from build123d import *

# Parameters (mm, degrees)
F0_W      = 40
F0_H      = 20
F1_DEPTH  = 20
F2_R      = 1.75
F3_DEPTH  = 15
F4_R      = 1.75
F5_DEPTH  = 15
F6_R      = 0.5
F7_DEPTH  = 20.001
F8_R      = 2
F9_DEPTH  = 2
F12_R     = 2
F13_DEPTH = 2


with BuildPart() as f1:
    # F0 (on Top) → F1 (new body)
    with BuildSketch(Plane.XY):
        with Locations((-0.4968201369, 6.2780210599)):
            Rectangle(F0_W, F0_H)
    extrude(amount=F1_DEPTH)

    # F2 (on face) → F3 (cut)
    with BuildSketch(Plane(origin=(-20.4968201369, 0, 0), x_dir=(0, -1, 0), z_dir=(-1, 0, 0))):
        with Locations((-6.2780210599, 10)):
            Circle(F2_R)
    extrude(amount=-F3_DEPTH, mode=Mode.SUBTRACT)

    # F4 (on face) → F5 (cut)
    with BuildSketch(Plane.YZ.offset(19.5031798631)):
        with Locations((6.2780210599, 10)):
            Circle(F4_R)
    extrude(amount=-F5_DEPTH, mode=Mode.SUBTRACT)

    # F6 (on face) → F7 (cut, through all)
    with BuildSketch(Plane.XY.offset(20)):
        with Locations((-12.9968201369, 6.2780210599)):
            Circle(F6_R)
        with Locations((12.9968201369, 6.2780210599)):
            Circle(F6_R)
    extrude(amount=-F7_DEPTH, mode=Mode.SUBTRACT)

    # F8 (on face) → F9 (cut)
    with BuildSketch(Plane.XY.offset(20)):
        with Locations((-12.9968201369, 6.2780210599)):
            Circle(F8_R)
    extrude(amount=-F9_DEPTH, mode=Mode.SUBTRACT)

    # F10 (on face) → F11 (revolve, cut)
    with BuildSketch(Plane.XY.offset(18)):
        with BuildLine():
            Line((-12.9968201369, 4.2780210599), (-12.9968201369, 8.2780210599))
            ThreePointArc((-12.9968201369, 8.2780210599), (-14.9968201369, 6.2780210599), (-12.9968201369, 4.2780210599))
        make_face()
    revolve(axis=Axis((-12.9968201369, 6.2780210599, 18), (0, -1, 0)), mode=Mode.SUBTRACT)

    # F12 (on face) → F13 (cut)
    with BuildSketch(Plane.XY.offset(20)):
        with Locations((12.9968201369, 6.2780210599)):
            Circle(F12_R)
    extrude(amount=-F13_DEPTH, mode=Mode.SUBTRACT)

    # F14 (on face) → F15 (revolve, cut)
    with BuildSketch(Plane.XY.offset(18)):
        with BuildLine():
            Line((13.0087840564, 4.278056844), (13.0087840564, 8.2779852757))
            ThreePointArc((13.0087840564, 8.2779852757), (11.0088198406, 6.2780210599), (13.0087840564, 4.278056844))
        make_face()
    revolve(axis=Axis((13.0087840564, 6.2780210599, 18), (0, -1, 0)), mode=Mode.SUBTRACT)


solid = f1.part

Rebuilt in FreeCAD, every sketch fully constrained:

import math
import FreeCAD as App
import Part
import Sketcher
from FreeCAD import Vector
Q = App.Units.Quantity


def add_polygon(sketch, points):
    """Adds a closed chain of lines whose ends are joined by coincident constraints."""
    first, n = sketch.GeometryCount, len(points)
    for a, b in zip(points, points[1:] + points[:1]):
        sketch.addGeometry(Part.LineSegment(App.Vector(*a, 0), App.Vector(*b, 0)), False)
    for i in range(n):
        sketch.addConstraint(Sketcher.Constraint("Coincident", first + i, 2, first + (i + 1) % n, 1))

doc = App.newDocument("Part")
params = doc.addObject("Spreadsheet::Sheet", "Params")
for row, (alias, value) in enumerate([
    ("sketch1_width", "40 mm"),
    ("sketch1_height", "20 mm"),
    ("pad1_length", "20 mm"),
    ("sketch2_diameter", "3.5 mm"),
    ("pocket1_length", "15 mm"),
    ("sketch3_diameter", "3.5 mm"),
    ("pocket2_length", "15 mm"),
    ("sketch4_diameter", "1 mm"),
    ("sketch5_diameter", "4 mm"),
    ("pocket4_length", "2 mm"),
    ("sketch6_radius", "2 mm"),
    ("groove_angle", "360 deg"),
    ("sketch7_diameter", "4 mm"),
    ("pocket5_length", "2 mm"),
    ("groove2_angle", "360 deg"),
], start=1):
    params.set(f"A{row}", alias)
    params.set(f"B{row}", "=" + value)
    params.setAlias(f"B{row}", alias)

body = doc.addObject("PartDesign::Body", "Body")

# Sketch on XY plane
sketch1 = doc.addObject("Sketcher::SketchObject", "Sketch")
body.addObject(sketch1)
sketch1.AttachmentSupport = (doc.XY_Plane, [""])
sketch1.MapMode = "FlatFace"
add_polygon(sketch1, [(-20.49682, 16.278021), (-20.49682, -3.721979), (19.50318, -3.721979), (19.50318, 16.278021)])  # lines 0-3
sketch1.addConstraint([
    Sketcher.Constraint("Vertical", 0),
    Sketcher.Constraint("Horizontal", 1),
    Sketcher.Constraint("Vertical", 2),
    Sketcher.Constraint("Horizontal", 3),
    Sketcher.Constraint("DistanceX", 1, 1, 1, 2, Q("40 mm")),
    Sketcher.Constraint("DistanceY", 0, 2, 0, 1, Q("20 mm")),
    Sketcher.Constraint("DistanceX", 0, 2, -1, 1, Q("20.49682 mm")),
    Sketcher.Constraint("DistanceY", 0, 2, -1, 1, Q("3.721979 mm")),
])
sketch1.setExpression("Constraints[8]", "Params.sketch1_width")
sketch1.setExpression("Constraints[9]", "Params.sketch1_height")
pad1 = doc.addObject("PartDesign::Pad", "Pad")
body.addObject(pad1)
pad1.Profile = sketch1
pad1.setExpression("Length", "Params.pad1_length")

# Sketch on YZ plane
sketch2 = doc.addObject("Sketcher::SketchObject", "Sketch001")
body.addObject(sketch2)
sketch2.AttachmentSupport = (doc.YZ_Plane, [""])
sketch2.MapMode = "FlatFace"
sketch2.AttachmentOffset = App.Placement(Vector(0, 0, -20.49682), App.Rotation())
sketch2.addGeometry(Part.Circle(Vector(6.278021, 10, 0), Vector(0, 0, 1), 1.75), False)
sketch2.addConstraint([
    Sketcher.Constraint("Diameter", 0, Q("3.5 mm")),
    Sketcher.Constraint("DistanceY", -1, 1, 0, 3, Q("10 mm")),
    Sketcher.Constraint("DistanceX", -1, 1, 0, 3, Q("6.278021 mm")),
])
sketch2.setExpression("Constraints[0]", "Params.sketch2_diameter")
pocket1 = doc.addObject("PartDesign::Pocket", "Pocket")
body.addObject(pocket1)
pocket1.Profile = sketch2
pocket1.setExpression("Length", "Params.pocket1_length")
pocket1.Reversed = True

# Sketch on YZ plane
sketch3 = doc.addObject("Sketcher::SketchObject", "Sketch002")
body.addObject(sketch3)
sketch3.AttachmentSupport = (doc.YZ_Plane, [""])
sketch3.MapMode = "FlatFace"
sketch3.AttachmentOffset = App.Placement(Vector(0, 0, 19.50318), App.Rotation())
sketch3.addGeometry(Part.Circle(Vector(6.278021, 10, 0), Vector(0, 0, 1), 1.75), False)
sketch3.addConstraint([
    Sketcher.Constraint("Diameter", 0, Q("3.5 mm")),
    Sketcher.Constraint("DistanceY", -1, 1, 0, 3, Q("10 mm")),
    Sketcher.Constraint("DistanceX", -1, 1, 0, 3, Q("6.278021 mm")),
])
sketch3.setExpression("Constraints[0]", "Params.sketch3_diameter")
pocket2 = doc.addObject("PartDesign::Pocket", "Pocket001")
body.addObject(pocket2)
pocket2.Profile = sketch3
pocket2.setExpression("Length", "Params.pocket2_length")

# Sketch on XY plane
sketch4 = doc.addObject("Sketcher::SketchObject", "Sketch003")
body.addObject(sketch4)
sketch4.AttachmentSupport = (doc.XY_Plane, [""])
sketch4.MapMode = "FlatFace"
sketch4.AttachmentOffset = App.Placement(Vector(0, 0, 20), App.Rotation())
sketch4.addGeometry([
    Part.Circle(Vector(-12.99682, 6.278021, 0), Vector(0, 0, 1), 0.5),
    Part.Circle(Vector(12.99682, 6.278021, 0), Vector(0, 0, 1), 0.5),
], False)
sketch4.addConstraint([
    Sketcher.Constraint("Equal", 0, 1),
    Sketcher.Constraint("Symmetric", 0, 3, 1, 3, -2),
    Sketcher.Constraint("Diameter", 0, Q("1 mm")),
    Sketcher.Constraint("DistanceX", 0, 3, -1, 1, Q("12.99682 mm")),
    Sketcher.Constraint("DistanceY", -1, 1, 0, 3, Q("6.278021 mm")),
])
sketch4.setExpression("Constraints[2]", "Params.sketch4_diameter")
pocket3 = doc.addObject("PartDesign::Pocket", "Pocket002")
body.addObject(pocket3)
pocket3.Profile = sketch4
pocket3.Type = "ThroughAll"

# Sketch on XY plane
sketch5 = doc.addObject("Sketcher::SketchObject", "Sketch004")
body.addObject(sketch5)
sketch5.AttachmentSupport = (doc.XY_Plane, [""])
sketch5.MapMode = "FlatFace"
sketch5.AttachmentOffset = App.Placement(Vector(0, 0, 20), App.Rotation())
sketch5.addGeometry(Part.Circle(Vector(-12.99682, 6.278021, 0), Vector(0, 0, 1), 2), False)
sketch5.addConstraint([
    Sketcher.Constraint("Diameter", 0, Q("4 mm")),
    Sketcher.Constraint("DistanceX", 0, 3, -1, 1, Q("12.99682 mm")),
    Sketcher.Constraint("DistanceY", -1, 1, 0, 3, Q("6.278021 mm")),
])
sketch5.setExpression("Constraints[0]", "Params.sketch5_diameter")
pocket4 = doc.addObject("PartDesign::Pocket", "Pocket003")
body.addObject(pocket4)
pocket4.Profile = sketch5
pocket4.setExpression("Length", "Params.pocket4_length")

# Sketch on XY plane
sketch6 = doc.addObject("Sketcher::SketchObject", "Sketch005")
body.addObject(sketch6)
sketch6.AttachmentSupport = (doc.XY_Plane, [""])
sketch6.MapMode = "FlatFace"
sketch6.AttachmentOffset = App.Placement(Vector(0, 0, 18), App.Rotation())
sketch6.addGeometry([
    Part.LineSegment(Vector(-12.99682, 4.278021, 0), Vector(-12.99682, 8.278021, 0)),
    Part.ArcOfCircle(Part.Circle(Vector(-12.99682, 6.278021, 0), Vector(0, 0, 1), 2), math.radians(90), math.radians(270)),
], False)
sketch6.addGeometry(Part.LineSegment(Vector(-12.99682, 8.278021, 0), Vector(-12.99682, 4.278021, 0)), True)  # axis
sketch6.addConstraint([
    Sketcher.Constraint("Coincident", 0, 1, 1, 2),
    Sketcher.Constraint("Coincident", 1, 1, 0, 2),
    Sketcher.Constraint("Vertical", 0),
    Sketcher.Constraint("Vertical", 2),
    Sketcher.Constraint("Coincident", 2, 1, 1, 1),
    Sketcher.Constraint("Vertical", 1, 3, 0, 1),
    Sketcher.Constraint("Equal", 0, 2),
    Sketcher.Constraint("Radius", 1, Q("2 mm")),
    Sketcher.Constraint("DistanceX", 1, 3, -1, 1, Q("12.99682 mm")),
    Sketcher.Constraint("DistanceY", -1, 1, 1, 3, Q("6.278021 mm")),
])
sketch6.setExpression("Constraints[7]", "Params.sketch6_radius")
groove = doc.addObject("PartDesign::Groove", "Groove")
body.addObject(groove)
groove.Profile = sketch6
groove.ReferenceAxis = (sketch6, ["Axis0"])
groove.setExpression("Angle", "Params.groove_angle")

# Sketch on XY plane
sketch7 = doc.addObject("Sketcher::SketchObject", "Sketch006")
body.addObject(sketch7)
sketch7.AttachmentSupport = (doc.XY_Plane, [""])
sketch7.MapMode = "FlatFace"
sketch7.AttachmentOffset = App.Placement(Vector(0, 0, 20), App.Rotation())
sketch7.addGeometry(Part.Circle(Vector(12.99682, 6.278021, 0), Vector(0, 0, 1), 2), False)
sketch7.addConstraint([
    Sketcher.Constraint("Diameter", 0, Q("4 mm")),
    Sketcher.Constraint("DistanceX", -1, 1, 0, 3, Q("12.99682 mm")),
    Sketcher.Constraint("DistanceY", -1, 1, 0, 3, Q("6.278021 mm")),
])
sketch7.setExpression("Constraints[0]", "Params.sketch7_diameter")
pocket5 = doc.addObject("PartDesign::Pocket", "Pocket004")
body.addObject(pocket5)
pocket5.Profile = sketch7
pocket5.setExpression("Length", "Params.pocket5_length")

# Sketch on XY plane
sketch8 = doc.addObject("Sketcher::SketchObject", "Sketch007")
body.addObject(sketch8)
sketch8.AttachmentSupport = (doc.XY_Plane, [""])
sketch8.MapMode = "FlatFace"
sketch8.AttachmentOffset = App.Placement(Vector(0, 0, 18), App.Rotation())
sketch8.addGeometry([
    Part.LineSegment(Vector(13.008784, 4.278057, 0), Vector(13.008784, 8.277985, 0)),
    Part.ArcOfCircle(Part.Circle(Vector(13.008784, 6.278021, 0), Vector(0, 0, 1), 1.999964), math.radians(90), math.radians(270)),
], False)
sketch8.addGeometry(Part.LineSegment(Vector(13.008784, 8.277985, 0), Vector(13.008784, 4.278057, 0)), True)  # axis
sketch8.addConstraint([
    Sketcher.Constraint("Coincident", 0, 1, 1, 2),
    Sketcher.Constraint("Coincident", 1, 1, 0, 2),
    Sketcher.Constraint("Vertical", 0),
    Sketcher.Constraint("Vertical", 2),
    Sketcher.Constraint("Coincident", 2, 1, 1, 1),
    Sketcher.Constraint("Vertical", 1, 3, 0, 1),
    Sketcher.Constraint("Equal", 0, 2),
    Sketcher.Constraint("Radius", 1, Q("1.999964 mm")),
    Sketcher.Constraint("DistanceY", -1, 1, 1, 3, Q("6.278021 mm")),
    Sketcher.Constraint("DistanceX", -1, 1, 1, 3, Q("13.008784 mm")),
])
groove2 = doc.addObject("PartDesign::Groove", "Groove001")
body.addObject(groove2)
groove2.Profile = sketch8
groove2.ReferenceAxis = (sketch8, ["Axis0"])
groove2.setExpression("Angle", "Params.groove2_angle")

doc.recompute()
